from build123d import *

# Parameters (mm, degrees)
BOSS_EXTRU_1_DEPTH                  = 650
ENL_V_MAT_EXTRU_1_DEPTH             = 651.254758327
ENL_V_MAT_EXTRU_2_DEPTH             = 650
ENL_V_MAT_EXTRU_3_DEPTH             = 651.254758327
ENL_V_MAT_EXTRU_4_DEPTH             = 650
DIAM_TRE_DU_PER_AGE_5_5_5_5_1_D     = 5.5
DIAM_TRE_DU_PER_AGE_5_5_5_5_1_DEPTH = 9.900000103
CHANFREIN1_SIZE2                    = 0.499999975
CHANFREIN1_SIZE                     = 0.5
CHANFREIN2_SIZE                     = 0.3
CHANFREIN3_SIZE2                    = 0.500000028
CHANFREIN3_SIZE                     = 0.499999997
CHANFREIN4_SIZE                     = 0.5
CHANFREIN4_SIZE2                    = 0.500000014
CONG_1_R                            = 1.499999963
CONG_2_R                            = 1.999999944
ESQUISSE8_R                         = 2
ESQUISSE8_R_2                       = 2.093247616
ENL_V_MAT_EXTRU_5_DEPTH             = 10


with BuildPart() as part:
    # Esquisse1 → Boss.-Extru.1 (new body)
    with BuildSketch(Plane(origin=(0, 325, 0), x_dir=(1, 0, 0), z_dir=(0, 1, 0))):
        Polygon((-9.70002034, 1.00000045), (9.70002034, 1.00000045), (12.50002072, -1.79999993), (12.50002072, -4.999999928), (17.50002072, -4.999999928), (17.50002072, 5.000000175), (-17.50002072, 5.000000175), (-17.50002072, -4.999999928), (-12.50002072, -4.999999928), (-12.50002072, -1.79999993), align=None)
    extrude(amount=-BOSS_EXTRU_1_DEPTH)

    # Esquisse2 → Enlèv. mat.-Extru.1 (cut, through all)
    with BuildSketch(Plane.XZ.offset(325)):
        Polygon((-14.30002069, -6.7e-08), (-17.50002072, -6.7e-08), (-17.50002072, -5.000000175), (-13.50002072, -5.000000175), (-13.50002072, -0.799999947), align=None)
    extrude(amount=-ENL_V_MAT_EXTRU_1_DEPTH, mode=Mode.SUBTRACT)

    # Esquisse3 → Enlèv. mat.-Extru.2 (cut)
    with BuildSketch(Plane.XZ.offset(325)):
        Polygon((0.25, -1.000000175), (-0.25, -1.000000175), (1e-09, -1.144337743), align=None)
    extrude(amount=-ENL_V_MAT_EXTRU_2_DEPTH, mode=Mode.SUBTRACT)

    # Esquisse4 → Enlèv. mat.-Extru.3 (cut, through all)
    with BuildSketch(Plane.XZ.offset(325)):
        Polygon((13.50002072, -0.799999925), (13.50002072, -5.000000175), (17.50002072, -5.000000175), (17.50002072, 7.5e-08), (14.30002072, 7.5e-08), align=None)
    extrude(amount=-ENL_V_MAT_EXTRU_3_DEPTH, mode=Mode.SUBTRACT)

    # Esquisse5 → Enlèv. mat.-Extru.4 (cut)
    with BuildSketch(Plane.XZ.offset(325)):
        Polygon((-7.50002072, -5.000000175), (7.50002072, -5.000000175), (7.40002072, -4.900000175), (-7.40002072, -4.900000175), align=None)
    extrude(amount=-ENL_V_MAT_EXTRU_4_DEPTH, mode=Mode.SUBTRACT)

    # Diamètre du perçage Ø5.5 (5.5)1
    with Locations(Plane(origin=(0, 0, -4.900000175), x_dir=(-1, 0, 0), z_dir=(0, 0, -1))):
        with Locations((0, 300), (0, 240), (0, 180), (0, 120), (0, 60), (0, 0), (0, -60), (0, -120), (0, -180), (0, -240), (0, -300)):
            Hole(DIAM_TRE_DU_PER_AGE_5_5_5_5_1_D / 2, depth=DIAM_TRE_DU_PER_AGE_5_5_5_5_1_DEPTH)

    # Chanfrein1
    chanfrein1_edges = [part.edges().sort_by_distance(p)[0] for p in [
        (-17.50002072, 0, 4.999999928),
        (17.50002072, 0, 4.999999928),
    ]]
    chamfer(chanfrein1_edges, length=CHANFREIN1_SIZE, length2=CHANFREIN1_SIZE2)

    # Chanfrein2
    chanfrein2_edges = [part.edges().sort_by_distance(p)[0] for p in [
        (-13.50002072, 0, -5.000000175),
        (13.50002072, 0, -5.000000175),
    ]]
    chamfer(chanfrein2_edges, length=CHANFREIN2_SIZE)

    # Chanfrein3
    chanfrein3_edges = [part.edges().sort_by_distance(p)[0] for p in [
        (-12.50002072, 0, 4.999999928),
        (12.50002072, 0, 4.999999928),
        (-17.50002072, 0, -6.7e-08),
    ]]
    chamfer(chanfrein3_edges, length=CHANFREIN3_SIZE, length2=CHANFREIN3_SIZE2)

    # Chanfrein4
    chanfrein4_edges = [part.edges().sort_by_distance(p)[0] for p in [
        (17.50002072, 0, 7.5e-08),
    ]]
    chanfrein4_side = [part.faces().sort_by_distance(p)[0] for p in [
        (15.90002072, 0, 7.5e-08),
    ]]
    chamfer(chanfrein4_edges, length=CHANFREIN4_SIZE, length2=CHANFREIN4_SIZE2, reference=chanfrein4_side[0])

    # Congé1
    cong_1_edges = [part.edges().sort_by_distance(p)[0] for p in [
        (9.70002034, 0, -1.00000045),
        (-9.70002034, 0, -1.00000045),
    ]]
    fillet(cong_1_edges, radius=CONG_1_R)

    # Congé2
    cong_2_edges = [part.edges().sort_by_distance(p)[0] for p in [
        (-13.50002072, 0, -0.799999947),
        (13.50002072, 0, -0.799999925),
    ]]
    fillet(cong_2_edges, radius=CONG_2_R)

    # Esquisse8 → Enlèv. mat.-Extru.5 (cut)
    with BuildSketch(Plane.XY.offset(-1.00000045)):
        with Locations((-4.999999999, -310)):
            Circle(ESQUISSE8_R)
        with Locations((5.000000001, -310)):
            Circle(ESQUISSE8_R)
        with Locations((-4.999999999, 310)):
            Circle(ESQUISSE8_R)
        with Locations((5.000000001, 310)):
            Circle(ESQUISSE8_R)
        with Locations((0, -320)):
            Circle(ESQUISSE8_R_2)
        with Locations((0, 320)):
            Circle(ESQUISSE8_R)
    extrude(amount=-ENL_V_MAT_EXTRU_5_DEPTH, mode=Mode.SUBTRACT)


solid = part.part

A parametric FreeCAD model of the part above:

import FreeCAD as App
import Part
import Sketcher
Q = App.Units.Quantity


def edges_at(feature, points):
    """Names of the edges that pass closest to the given points."""
    edges = feature.Shape.Edges
    near = lambda p: min(range(len(edges)), key=lambda i: edges[i].distToShape(Part.Vertex(*p))[0])
    return sorted({f"Edge{near(p) + 1}" for p in points})

doc = App.newDocument("Part")
body = doc.addObject("PartDesign::Body", "Body")

sketch1 = doc.addObject("Sketcher::SketchObject", "Sketch")
body.addObject(sketch1)
sketch1.AttachmentSupport = (doc.XZ_Plane, [""])
sketch1.MapMode = "FlatFace"
sketch1.AttachmentOffset = App.Placement(App.Vector(0, 0, -325), App.Rotation())
sketch1.addGeometry([
    Part.LineSegment(App.Vector(-9.70002, -1, 0), App.Vector(9.70002, -1, 0)),
    Part.LineSegment(App.Vector(9.70002, -1, 0), App.Vector(12.500021, 1.8, 0)),
    Part.LineSegment(App.Vector(12.500021, 1.8, 0), App.Vector(12.500021, 5, 0)),
    Part.LineSegment(App.Vector(12.500021, 5, 0), App.Vector(17.500021, 5, 0)),
    Part.LineSegment(App.Vector(17.500021, 5, 0), App.Vector(17.500021, -5, 0)),
    Part.LineSegment(App.Vector(17.500021, -5, 0), App.Vector(-17.500021, -5, 0)),
    Part.LineSegment(App.Vector(-17.500021, -5, 0), App.Vector(-17.500021, 5, 0)),
    Part.LineSegment(App.Vector(-17.500021, 5, 0), App.Vector(-12.500021, 5, 0)),
    Part.LineSegment(App.Vector(-12.500021, 5, 0), App.Vector(-12.500021, 1.8, 0)),
    Part.LineSegment(App.Vector(-12.500021, 1.8, 0), App.Vector(-9.70002, -1, 0)),
], False)
sketch1.addConstraint([
    Sketcher.Constraint("Coincident", 0, 2, 1, 1),
    Sketcher.Constraint("Coincident", 1, 2, 2, 1),
    Sketcher.Constraint("Coincident", 2, 2, 3, 1),
    Sketcher.Constraint("Coincident", 3, 2, 4, 1),
    Sketcher.Constraint("Coincident", 4, 2, 5, 1),
    Sketcher.Constraint("Coincident", 5, 2, 6, 1),
    Sketcher.Constraint("Coincident", 6, 2, 7, 1),
    Sketcher.Constraint("Coincident", 7, 2, 8, 1),
    Sketcher.Constraint("Coincident", 8, 2, 9, 1),
    Sketcher.Constraint("Coincident", 9, 2, 0, 1),
    Sketcher.Constraint("Horizontal", 0),
    Sketcher.Constraint("Vertical", 2),
    Sketcher.Constraint("Horizontal", 3),
    Sketcher.Constraint("Vertical", 4),
    Sketcher.Constraint("Horizontal", 5),
    Sketcher.Constraint("Vertical", 6),
    Sketcher.Constraint("Horizontal", 7),
    Sketcher.Constraint("Vertical", 8),
    Sketcher.Constraint("Symmetric", 3, 2, 5, 2, -1, 1),
    Sketcher.Constraint("Symmetric", 2, 2, 7, 2, -2),
    Sketcher.Constraint("Perpendicular", 1, 9),
    Sketcher.Constraint("Horizontal", 1, 2, 8, 2),
    Sketcher.Constraint("Equal", 1, 9),
    Sketcher.Constraint("DistanceX", 3, 1, 3, 2, 5.0),
    Sketcher.Constraint("DistanceY", 4, 2, 4, 1, 10.0),
    Sketcher.Constraint("DistanceY", 2, 1, 2, 2, 3.2),
    Sketcher.Constraint("DistanceY", 0, 2, -1, 1, 1.0),
    Sketcher.Constraint("DistanceX", 0, 1, 0, 2, 19.400041),
])
pad1 = doc.addObject("PartDesign::Pad", "Pad")
body.addObject(pad1)
pad1.Profile = sketch1
pad1.Length = 650

sketch2 = doc.addObject("Sketcher::SketchObject", "Sketch001")
body.addObject(sketch2)
sketch2.AttachmentSupport = (doc.XZ_Plane, [""])
sketch2.MapMode = "FlatFace"
sketch2.AttachmentOffset = App.Placement(App.Vector(0, 0, 325), App.Rotation())
sketch2.addGeometry([
    Part.LineSegment(App.Vector(-14.300021, 0, 0), App.Vector(-17.500021, 0, 0)),
    Part.LineSegment(App.Vector(-17.500021, 0, 0), App.Vector(-17.500021, -5, 0)),
    Part.LineSegment(App.Vector(-17.500021, -5, 0), App.Vector(-13.500021, -5, 0)),
    Part.LineSegment(App.Vector(-13.500021, -5, 0), App.Vector(-13.500021, -0.8, 0)),
    Part.LineSegment(App.Vector(-13.500021, -0.8, 0), App.Vector(-14.300021, 0, 0)),
], False)
sketch2.addConstraint([
    Sketcher.Constraint("Coincident", 0, 2, 1, 1),
    Sketcher.Constraint("Coincident", 1, 2, 2, 1),
    Sketcher.Constraint("Coincident", 2, 2, 3, 1),
    Sketcher.Constraint("Coincident", 3, 2, 4, 1),
    Sketcher.Constraint("Coincident", 4, 2, 0, 1),
    Sketcher.Constraint("Horizontal", 0),
    Sketcher.Constraint("Vertical", 1),
    Sketcher.Constraint("Horizontal", 2),
    Sketcher.Constraint("Vertical", 3),
    Sketcher.Constraint("PointOnObject", 0, 2, -1),
    Sketcher.Constraint("DistanceX", 2, 1, 2, 2, 4.0),
    Sketcher.Constraint("DistanceY", 1, 2, 1, 1, 5.0),
    Sketcher.Constraint("Angle", 4, Q("135.000003 deg")),
    Sketcher.Constraint("DistanceX", 0, 2, 0, 1, 3.2),
    Sketcher.Constraint("DistanceX", 0, 2, -1, 1, 17.500021),
])
pocket1 = doc.addObject("PartDesign::Pocket", "Pocket")
body.addObject(pocket1)
pocket1.Profile = sketch2
pocket1.Type = "ThroughAll"

sketch3 = doc.addObject("Sketcher::SketchObject", "Sketch002")
body.addObject(sketch3)
sketch3.AttachmentSupport = (doc.XZ_Plane, [""])
sketch3.MapMode = "FlatFace"
sketch3.AttachmentOffset = App.Placement(App.Vector(0, 0, 325), App.Rotation())
sketch3.addGeometry([
    Part.LineSegment(App.Vector(0.25, -1, 0), App.Vector(-0.25, -1, 0)),
    Part.LineSegment(App.Vector(-0.25, -1, 0), App.Vector(0, -1.144338, 0)),
    Part.LineSegment(App.Vector(0, -1.144338, 0), App.Vector(0.25, -1, 0)),
], False)
sketch3.addConstraint([
    Sketcher.Constraint("Coincident", 0, 2, 1, 1),
    Sketcher.Constraint("Coincident", 1, 2, 2, 1),
    Sketcher.Constraint("Coincident", 2, 2, 0, 1),
    Sketcher.Constraint("Horizontal", 0),
    Sketcher.Constraint("PointOnObject", 1, 2, -2),
    Sketcher.Constraint("Equal", 1, 2),
    Sketcher.Constraint("Angle", 1, Q("-30 deg")),
    Sketcher.Constraint("DistanceX", 0, 2, 0, 1, 0.5),
    Sketcher.Constraint("DistanceY", 0, 2, -1, 1, 1.0),
])
pocket2 = doc.addObject("PartDesign::Pocket", "Pocket001")
body.addObject(pocket2)
pocket2.Profile = sketch3
pocket2.Length = 650

sketch4 = doc.addObject("Sketcher::SketchObject", "Sketch003")
body.addObject(sketch4)
sketch4.AttachmentSupport = (doc.XZ_Plane, [""])
sketch4.MapMode = "FlatFace"
sketch4.AttachmentOffset = App.Placement(App.Vector(0, 0, 325), App.Rotation())
sketch4.addGeometry([
    Part.LineSegment(App.Vector(13.500021, -0.8, 0), App.Vector(13.500021, -5, 0)),
    Part.LineSegment(App.Vector(13.500021, -5, 0), App.Vector(17.500021, -5, 0)),
    Part.LineSegment(App.Vector(17.500021, -5, 0), App.Vector(17.500021, 0, 0)),
    Part.LineSegment(App.Vector(17.500021, 0, 0), App.Vector(14.300021, 0, 0)),
    Part.LineSegment(App.Vector(14.300021, 0, 0), App.Vector(13.500021, -0.8, 0)),
], False)
sketch4.addConstraint([
    Sketcher.Constraint("Coincident", 0, 2, 1, 1),
    Sketcher.Constraint("Coincident", 1, 2, 2, 1),
    Sketcher.Constraint("Coincident", 2, 2, 3, 1),
    Sketcher.Constraint("Coincident", 3, 2, 4, 1),
    Sketcher.Constraint("Coincident", 4, 2, 0, 1),
    Sketcher.Constraint("Vertical", 0),
    Sketcher.Constraint("Horizontal", 1),
    Sketcher.Constraint("Vertical", 2),
    Sketcher.Constraint("Horizontal", 3),
    Sketcher.Constraint("PointOnObject", 2, 2, -1),
    Sketcher.Constraint("DistanceX", 1, 1, 1, 2, 4.0),
    Sketcher.Constraint("DistanceY", 2, 1, 2, 2, 5.0),
    Sketcher.Constraint("Angle", 4, Q("-135 deg")),
    Sketcher.Constraint("DistanceX", 3, 2, 3, 1, 3.2),
    Sketcher.Constraint("DistanceX", -1, 1, 0, 2, 13.500021),
])
pocket3 = doc.addObject("PartDesign::Pocket", "Pocket002")
body.addObject(pocket3)
pocket3.Profile = sketch4
pocket3.Type = "ThroughAll"

sketch5 = doc.addObject("Sketcher::SketchObject", "Sketch004")
body.addObject(sketch5)
sketch5.AttachmentSupport = (doc.XZ_Plane, [""])
sketch5.MapMode = "FlatFace"
sketch5.AttachmentOffset = App.Placement(App.Vector(0, 0, 325), App.Rotation())
sketch5.addGeometry([
    Part.LineSegment(App.Vector(-7.500021, -5, 0), App.Vector(7.500021, -5, 0)),
    Part.LineSegment(App.Vector(7.500021, -5, 0), App.Vector(7.400021, -4.9, 0)),
    Part.LineSegment(App.Vector(7.400021, -4.9, 0), App.Vector(-7.400021, -4.9, 0)),
    Part.LineSegment(App.Vector(-7.400021, -4.9, 0), App.Vector(-7.500021, -5, 0)),
], False)
sketch5.addConstraint([
    Sketcher.Constraint("Coincident", 0, 2, 1, 1),
    Sketcher.Constraint("Coincident", 1, 2, 2, 1),
    Sketcher.Constraint("Coincident", 2, 2, 3, 1),
    Sketcher.Constraint("Coincident", 3, 2, 0, 1),
    Sketcher.Constraint("Horizontal", 0),
    Sketcher.Constraint("Horizontal", 2),
    Sketcher.Constraint("Perpendicular", 1, 3),
    Sketcher.Constraint("Equal", 1, 3),
    Sketcher.Constraint("DistanceY", 0, 2, -1, 1, 5.0),
    Sketcher.Constraint("DistanceY", 1, 2, -1, 1, 4.9),
    Sketcher.Constraint("DistanceX", 0, 1, 0, 2, 15.000041),
    Sketcher.Constraint("DistanceX", -1, 1, 0, 2, 7.500021),
])
pocket4 = doc.addObject("PartDesign::Pocket", "Pocket003")
body.addObject(pocket4)
pocket4.Profile = sketch5
pocket4.Length = 650

sketch6 = doc.addObject("Sketcher::SketchObject", "Sketch005")
body.addObject(sketch6)
sketch6.AttachmentSupport = (doc.XY_Plane, [""])
sketch6.MapMode = "FlatFace"
sketch6.AttachmentOffset = App.Placement(App.Vector(0, 0, -4.9), App.Rotation())
sketch6.addGeometry([
    Part.Circle(App.Vector(0, 300, 0), App.Vector(0, 0, 1), 2.75),
    Part.Circle(App.Vector(0, 240, 0), App.Vector(0, 0, 1), 2.75),
    Part.Circle(App.Vector(0, 180, 0), App.Vector(0, 0, 1), 2.75),
    Part.Circle(App.Vector(0, 120, 0), App.Vector(0, 0, 1), 2.75),
    Part.Circle(App.Vector(0, 60, 0), App.Vector(0, 0, 1), 2.75),
    Part.Circle(App.Vector(0, 0, 0), App.Vector(0, 0, 1), 2.75),
    Part.Circle(App.Vector(0, -60, 0), App.Vector(0, 0, 1), 2.75),
    Part.Circle(App.Vector(0, -120, 0), App.Vector(0, 0, 1), 2.75),
    Part.Circle(App.Vector(0, -180, 0), App.Vector(0, 0, 1), 2.75),
    Part.Circle(App.Vector(0, -240, 0), App.Vector(0, 0, 1), 2.75),
    Part.Circle(App.Vector(0, -300, 0), App.Vector(0, 0, 1), 2.75),
], False)
sketch6.addConstraint([
    Sketcher.Constraint("Coincident", 5, 3, -1, 1),
    Sketcher.Constraint("Equal", 0, 1),
    Sketcher.Constraint("Equal", 1, 2),
    Sketcher.Constraint("Equal", 2, 3),
    Sketcher.Constraint("Equal", 3, 4),
    Sketcher.Constraint("Equal", 4, 5),
    Sketcher.Constraint("Equal", 5, 6),
    Sketcher.Constraint("Equal", 6, 7),
    Sketcher.Constraint("Equal", 7, 8),
    Sketcher.Constraint("Equal", 8, 9),
    Sketcher.Constraint("Equal", 9, 10),
    Sketcher.Constraint("Symmetric", 4, 3, 6, 3, -1, 1),
    Sketcher.Constraint("Symmetric", 3, 3, 7, 3, -1, 1),
    Sketcher.Constraint("Symmetric", 2, 3, 8, 3, -1, 1),
    Sketcher.Constraint("Symmetric", 1, 3, 9, 3, -1, 1),
    Sketcher.Constraint("Symmetric", 0, 3, 10, 3, -1, 1),
    Sketcher.Constraint("PointOnObject", 0, 3, -2),
    Sketcher.Constraint("PointOnObject", 1, 3, -2),
    Sketcher.Constraint("PointOnObject", 2, 3, -2),
    Sketcher.Constraint("PointOnObject", 3, 3, -2),
    Sketcher.Constraint("PointOnObject", 4, 3, -2),
    Sketcher.Constraint("Diameter", 0, 5.5),
    Sketcher.Constraint("DistanceY", -1, 1, 0, 3, 300.0),
    Sketcher.Constraint("DistanceY", -1, 1, 1, 3, 240.0),
    Sketcher.Constraint("DistanceY", -1, 1, 2, 3, 180.0),
    Sketcher.Constraint("DistanceY", -1, 1, 3, 3, 120.0),
    Sketcher.Constraint("DistanceY", -1, 1, 4, 3, 60.0),
])
doc.recompute()
hole = doc.addObject("PartDesign::Hole", "Hole")
body.addObject(hole)
hole.Profile = sketch6
hole.ThreadType = "None"
hole.Diameter = 5.5
hole.DepthType = "Dimension"
hole.Depth = 9.9
hole.DrillPoint = "Flat"
hole.Reversed = True
doc.recompute()

chamfer = doc.addObject("PartDesign::Chamfer", "Chamfer")
body.addObject(chamfer)
chamfer.Base = (hole, edges_at(hole, [(-17.5, 0, 5), (17.5, 0, 5)]))
chamfer.ChamferType = "Two distances"
chamfer.Size = 0.5
chamfer.Size2 = 0.5
doc.recompute()

chamfer2 = doc.addObject("PartDesign::Chamfer", "Chamfer001")
body.addObject(chamfer2)
chamfer2.Base = (chamfer, edges_at(chamfer, [(-13.5, 0, -5), (13.5, 0, -5)]))
chamfer2.Size = 0.3
doc.recompute()

chamfer3 = doc.addObject("PartDesign::Chamfer", "Chamfer002")
body.addObject(chamfer3)
chamfer3.Base = (chamfer2, edges_at(chamfer2, [(-12.5, 0, 5), (12.5, 0, 5), (-17.5, 0, 0)]))
chamfer3.ChamferType = "Two distances"
chamfer3.Size = 0.5
chamfer3.Size2 = 0.5
doc.recompute()

chamfer4 = doc.addObject("PartDesign::Chamfer", "Chamfer003")
body.addObject(chamfer4)
chamfer4.Base = (chamfer3, edges_at(chamfer3, [(17.5, 0, 0)]))
chamfer4.ChamferType = "Two distances"
chamfer4.Size = 0.5
chamfer4.Size2 = 0.5
doc.recompute()

fillet = doc.addObject("PartDesign::Fillet", "Fillet")
body.addObject(fillet)
fillet.Base = (chamfer4, edges_at(chamfer4, [(9.7, 0, -1), (-9.7, 0, -1)]))
fillet.Radius = 1.5
doc.recompute()

fillet2 = doc.addObject("PartDesign::Fillet", "Fillet001")
body.addObject(fillet2)
fillet2.Base = (fillet, edges_at(fillet, [(-13.5, 0, -0.8), (13.5, 0, -0.8)]))
fillet2.Radius = 2

sketch7 = doc.addObject("Sketcher::SketchObject", "Sketch006")
body.addObject(sketch7)
sketch7.AttachmentSupport = (doc.XY_Plane, [""])
sketch7.MapMode = "FlatFace"
sketch7.AttachmentOffset = App.Placement(App.Vector(0, 0, -1), App.Rotation())
sketch7.addGeometry([
    Part.Circle(App.Vector(-5, -310, 0), App.Vector(0, 0, 1), 2),
    Part.Circle(App.Vector(5, -310, 0), App.Vector(0, 0, 1), 2),
    Part.Circle(App.Vector(-5, 310, 0), App.Vector(0, 0, 1), 2),
    Part.Circle(App.Vector(5, 310, 0), App.Vector(0, 0, 1), 2),
    Part.Circle(App.Vector(0, -320, 0), App.Vector(0, 0, 1), 2.093248),
    Part.Circle(App.Vector(0, 320, 0), App.Vector(0, 0, 1), 2),
], False)
sketch7.addConstraint([
    Sketcher.Constraint("Equal", 0, 1),
    Sketcher.Constraint("Equal", 1, 2),
    Sketcher.Constraint("Equal", 2, 3),
    Sketcher.Constraint("Equal", 3, 5),
    Sketcher.Constraint("Symmetric", 1, 3, 2, 3, -1, 1),
    Sketcher.Constraint("Symmetric", 0, 3, 3, 3, -1, 1),
    Sketcher.Constraint("Symmetric", 4, 3, 5, 3, -1, 1),
    Sketcher.Constraint("Symmetric", 0, 3, 1, 3, -2),
    Sketcher.Constraint("PointOnObject", 4, 3, -2),
    Sketcher.Constraint("Diameter", 0, 4.0),
    Sketcher.Constraint("DistanceX", 0, 3, -1, 1, 5.0),
    Sketcher.Constraint("DistanceY", 0, 3, -1, 1, 310.0),
    Sketcher.Constraint("DistanceY", 4, 3, -1, 1, 320.0),
    Sketcher.Constraint("Diameter", 4, 4.186495),
])
pocket5 = doc.addObject("PartDesign::Pocket", "Pocket004")
body.addObject(pocket5)
pocket5.Profile = sketch7
pocket5.Length = 10

doc.recompute()
